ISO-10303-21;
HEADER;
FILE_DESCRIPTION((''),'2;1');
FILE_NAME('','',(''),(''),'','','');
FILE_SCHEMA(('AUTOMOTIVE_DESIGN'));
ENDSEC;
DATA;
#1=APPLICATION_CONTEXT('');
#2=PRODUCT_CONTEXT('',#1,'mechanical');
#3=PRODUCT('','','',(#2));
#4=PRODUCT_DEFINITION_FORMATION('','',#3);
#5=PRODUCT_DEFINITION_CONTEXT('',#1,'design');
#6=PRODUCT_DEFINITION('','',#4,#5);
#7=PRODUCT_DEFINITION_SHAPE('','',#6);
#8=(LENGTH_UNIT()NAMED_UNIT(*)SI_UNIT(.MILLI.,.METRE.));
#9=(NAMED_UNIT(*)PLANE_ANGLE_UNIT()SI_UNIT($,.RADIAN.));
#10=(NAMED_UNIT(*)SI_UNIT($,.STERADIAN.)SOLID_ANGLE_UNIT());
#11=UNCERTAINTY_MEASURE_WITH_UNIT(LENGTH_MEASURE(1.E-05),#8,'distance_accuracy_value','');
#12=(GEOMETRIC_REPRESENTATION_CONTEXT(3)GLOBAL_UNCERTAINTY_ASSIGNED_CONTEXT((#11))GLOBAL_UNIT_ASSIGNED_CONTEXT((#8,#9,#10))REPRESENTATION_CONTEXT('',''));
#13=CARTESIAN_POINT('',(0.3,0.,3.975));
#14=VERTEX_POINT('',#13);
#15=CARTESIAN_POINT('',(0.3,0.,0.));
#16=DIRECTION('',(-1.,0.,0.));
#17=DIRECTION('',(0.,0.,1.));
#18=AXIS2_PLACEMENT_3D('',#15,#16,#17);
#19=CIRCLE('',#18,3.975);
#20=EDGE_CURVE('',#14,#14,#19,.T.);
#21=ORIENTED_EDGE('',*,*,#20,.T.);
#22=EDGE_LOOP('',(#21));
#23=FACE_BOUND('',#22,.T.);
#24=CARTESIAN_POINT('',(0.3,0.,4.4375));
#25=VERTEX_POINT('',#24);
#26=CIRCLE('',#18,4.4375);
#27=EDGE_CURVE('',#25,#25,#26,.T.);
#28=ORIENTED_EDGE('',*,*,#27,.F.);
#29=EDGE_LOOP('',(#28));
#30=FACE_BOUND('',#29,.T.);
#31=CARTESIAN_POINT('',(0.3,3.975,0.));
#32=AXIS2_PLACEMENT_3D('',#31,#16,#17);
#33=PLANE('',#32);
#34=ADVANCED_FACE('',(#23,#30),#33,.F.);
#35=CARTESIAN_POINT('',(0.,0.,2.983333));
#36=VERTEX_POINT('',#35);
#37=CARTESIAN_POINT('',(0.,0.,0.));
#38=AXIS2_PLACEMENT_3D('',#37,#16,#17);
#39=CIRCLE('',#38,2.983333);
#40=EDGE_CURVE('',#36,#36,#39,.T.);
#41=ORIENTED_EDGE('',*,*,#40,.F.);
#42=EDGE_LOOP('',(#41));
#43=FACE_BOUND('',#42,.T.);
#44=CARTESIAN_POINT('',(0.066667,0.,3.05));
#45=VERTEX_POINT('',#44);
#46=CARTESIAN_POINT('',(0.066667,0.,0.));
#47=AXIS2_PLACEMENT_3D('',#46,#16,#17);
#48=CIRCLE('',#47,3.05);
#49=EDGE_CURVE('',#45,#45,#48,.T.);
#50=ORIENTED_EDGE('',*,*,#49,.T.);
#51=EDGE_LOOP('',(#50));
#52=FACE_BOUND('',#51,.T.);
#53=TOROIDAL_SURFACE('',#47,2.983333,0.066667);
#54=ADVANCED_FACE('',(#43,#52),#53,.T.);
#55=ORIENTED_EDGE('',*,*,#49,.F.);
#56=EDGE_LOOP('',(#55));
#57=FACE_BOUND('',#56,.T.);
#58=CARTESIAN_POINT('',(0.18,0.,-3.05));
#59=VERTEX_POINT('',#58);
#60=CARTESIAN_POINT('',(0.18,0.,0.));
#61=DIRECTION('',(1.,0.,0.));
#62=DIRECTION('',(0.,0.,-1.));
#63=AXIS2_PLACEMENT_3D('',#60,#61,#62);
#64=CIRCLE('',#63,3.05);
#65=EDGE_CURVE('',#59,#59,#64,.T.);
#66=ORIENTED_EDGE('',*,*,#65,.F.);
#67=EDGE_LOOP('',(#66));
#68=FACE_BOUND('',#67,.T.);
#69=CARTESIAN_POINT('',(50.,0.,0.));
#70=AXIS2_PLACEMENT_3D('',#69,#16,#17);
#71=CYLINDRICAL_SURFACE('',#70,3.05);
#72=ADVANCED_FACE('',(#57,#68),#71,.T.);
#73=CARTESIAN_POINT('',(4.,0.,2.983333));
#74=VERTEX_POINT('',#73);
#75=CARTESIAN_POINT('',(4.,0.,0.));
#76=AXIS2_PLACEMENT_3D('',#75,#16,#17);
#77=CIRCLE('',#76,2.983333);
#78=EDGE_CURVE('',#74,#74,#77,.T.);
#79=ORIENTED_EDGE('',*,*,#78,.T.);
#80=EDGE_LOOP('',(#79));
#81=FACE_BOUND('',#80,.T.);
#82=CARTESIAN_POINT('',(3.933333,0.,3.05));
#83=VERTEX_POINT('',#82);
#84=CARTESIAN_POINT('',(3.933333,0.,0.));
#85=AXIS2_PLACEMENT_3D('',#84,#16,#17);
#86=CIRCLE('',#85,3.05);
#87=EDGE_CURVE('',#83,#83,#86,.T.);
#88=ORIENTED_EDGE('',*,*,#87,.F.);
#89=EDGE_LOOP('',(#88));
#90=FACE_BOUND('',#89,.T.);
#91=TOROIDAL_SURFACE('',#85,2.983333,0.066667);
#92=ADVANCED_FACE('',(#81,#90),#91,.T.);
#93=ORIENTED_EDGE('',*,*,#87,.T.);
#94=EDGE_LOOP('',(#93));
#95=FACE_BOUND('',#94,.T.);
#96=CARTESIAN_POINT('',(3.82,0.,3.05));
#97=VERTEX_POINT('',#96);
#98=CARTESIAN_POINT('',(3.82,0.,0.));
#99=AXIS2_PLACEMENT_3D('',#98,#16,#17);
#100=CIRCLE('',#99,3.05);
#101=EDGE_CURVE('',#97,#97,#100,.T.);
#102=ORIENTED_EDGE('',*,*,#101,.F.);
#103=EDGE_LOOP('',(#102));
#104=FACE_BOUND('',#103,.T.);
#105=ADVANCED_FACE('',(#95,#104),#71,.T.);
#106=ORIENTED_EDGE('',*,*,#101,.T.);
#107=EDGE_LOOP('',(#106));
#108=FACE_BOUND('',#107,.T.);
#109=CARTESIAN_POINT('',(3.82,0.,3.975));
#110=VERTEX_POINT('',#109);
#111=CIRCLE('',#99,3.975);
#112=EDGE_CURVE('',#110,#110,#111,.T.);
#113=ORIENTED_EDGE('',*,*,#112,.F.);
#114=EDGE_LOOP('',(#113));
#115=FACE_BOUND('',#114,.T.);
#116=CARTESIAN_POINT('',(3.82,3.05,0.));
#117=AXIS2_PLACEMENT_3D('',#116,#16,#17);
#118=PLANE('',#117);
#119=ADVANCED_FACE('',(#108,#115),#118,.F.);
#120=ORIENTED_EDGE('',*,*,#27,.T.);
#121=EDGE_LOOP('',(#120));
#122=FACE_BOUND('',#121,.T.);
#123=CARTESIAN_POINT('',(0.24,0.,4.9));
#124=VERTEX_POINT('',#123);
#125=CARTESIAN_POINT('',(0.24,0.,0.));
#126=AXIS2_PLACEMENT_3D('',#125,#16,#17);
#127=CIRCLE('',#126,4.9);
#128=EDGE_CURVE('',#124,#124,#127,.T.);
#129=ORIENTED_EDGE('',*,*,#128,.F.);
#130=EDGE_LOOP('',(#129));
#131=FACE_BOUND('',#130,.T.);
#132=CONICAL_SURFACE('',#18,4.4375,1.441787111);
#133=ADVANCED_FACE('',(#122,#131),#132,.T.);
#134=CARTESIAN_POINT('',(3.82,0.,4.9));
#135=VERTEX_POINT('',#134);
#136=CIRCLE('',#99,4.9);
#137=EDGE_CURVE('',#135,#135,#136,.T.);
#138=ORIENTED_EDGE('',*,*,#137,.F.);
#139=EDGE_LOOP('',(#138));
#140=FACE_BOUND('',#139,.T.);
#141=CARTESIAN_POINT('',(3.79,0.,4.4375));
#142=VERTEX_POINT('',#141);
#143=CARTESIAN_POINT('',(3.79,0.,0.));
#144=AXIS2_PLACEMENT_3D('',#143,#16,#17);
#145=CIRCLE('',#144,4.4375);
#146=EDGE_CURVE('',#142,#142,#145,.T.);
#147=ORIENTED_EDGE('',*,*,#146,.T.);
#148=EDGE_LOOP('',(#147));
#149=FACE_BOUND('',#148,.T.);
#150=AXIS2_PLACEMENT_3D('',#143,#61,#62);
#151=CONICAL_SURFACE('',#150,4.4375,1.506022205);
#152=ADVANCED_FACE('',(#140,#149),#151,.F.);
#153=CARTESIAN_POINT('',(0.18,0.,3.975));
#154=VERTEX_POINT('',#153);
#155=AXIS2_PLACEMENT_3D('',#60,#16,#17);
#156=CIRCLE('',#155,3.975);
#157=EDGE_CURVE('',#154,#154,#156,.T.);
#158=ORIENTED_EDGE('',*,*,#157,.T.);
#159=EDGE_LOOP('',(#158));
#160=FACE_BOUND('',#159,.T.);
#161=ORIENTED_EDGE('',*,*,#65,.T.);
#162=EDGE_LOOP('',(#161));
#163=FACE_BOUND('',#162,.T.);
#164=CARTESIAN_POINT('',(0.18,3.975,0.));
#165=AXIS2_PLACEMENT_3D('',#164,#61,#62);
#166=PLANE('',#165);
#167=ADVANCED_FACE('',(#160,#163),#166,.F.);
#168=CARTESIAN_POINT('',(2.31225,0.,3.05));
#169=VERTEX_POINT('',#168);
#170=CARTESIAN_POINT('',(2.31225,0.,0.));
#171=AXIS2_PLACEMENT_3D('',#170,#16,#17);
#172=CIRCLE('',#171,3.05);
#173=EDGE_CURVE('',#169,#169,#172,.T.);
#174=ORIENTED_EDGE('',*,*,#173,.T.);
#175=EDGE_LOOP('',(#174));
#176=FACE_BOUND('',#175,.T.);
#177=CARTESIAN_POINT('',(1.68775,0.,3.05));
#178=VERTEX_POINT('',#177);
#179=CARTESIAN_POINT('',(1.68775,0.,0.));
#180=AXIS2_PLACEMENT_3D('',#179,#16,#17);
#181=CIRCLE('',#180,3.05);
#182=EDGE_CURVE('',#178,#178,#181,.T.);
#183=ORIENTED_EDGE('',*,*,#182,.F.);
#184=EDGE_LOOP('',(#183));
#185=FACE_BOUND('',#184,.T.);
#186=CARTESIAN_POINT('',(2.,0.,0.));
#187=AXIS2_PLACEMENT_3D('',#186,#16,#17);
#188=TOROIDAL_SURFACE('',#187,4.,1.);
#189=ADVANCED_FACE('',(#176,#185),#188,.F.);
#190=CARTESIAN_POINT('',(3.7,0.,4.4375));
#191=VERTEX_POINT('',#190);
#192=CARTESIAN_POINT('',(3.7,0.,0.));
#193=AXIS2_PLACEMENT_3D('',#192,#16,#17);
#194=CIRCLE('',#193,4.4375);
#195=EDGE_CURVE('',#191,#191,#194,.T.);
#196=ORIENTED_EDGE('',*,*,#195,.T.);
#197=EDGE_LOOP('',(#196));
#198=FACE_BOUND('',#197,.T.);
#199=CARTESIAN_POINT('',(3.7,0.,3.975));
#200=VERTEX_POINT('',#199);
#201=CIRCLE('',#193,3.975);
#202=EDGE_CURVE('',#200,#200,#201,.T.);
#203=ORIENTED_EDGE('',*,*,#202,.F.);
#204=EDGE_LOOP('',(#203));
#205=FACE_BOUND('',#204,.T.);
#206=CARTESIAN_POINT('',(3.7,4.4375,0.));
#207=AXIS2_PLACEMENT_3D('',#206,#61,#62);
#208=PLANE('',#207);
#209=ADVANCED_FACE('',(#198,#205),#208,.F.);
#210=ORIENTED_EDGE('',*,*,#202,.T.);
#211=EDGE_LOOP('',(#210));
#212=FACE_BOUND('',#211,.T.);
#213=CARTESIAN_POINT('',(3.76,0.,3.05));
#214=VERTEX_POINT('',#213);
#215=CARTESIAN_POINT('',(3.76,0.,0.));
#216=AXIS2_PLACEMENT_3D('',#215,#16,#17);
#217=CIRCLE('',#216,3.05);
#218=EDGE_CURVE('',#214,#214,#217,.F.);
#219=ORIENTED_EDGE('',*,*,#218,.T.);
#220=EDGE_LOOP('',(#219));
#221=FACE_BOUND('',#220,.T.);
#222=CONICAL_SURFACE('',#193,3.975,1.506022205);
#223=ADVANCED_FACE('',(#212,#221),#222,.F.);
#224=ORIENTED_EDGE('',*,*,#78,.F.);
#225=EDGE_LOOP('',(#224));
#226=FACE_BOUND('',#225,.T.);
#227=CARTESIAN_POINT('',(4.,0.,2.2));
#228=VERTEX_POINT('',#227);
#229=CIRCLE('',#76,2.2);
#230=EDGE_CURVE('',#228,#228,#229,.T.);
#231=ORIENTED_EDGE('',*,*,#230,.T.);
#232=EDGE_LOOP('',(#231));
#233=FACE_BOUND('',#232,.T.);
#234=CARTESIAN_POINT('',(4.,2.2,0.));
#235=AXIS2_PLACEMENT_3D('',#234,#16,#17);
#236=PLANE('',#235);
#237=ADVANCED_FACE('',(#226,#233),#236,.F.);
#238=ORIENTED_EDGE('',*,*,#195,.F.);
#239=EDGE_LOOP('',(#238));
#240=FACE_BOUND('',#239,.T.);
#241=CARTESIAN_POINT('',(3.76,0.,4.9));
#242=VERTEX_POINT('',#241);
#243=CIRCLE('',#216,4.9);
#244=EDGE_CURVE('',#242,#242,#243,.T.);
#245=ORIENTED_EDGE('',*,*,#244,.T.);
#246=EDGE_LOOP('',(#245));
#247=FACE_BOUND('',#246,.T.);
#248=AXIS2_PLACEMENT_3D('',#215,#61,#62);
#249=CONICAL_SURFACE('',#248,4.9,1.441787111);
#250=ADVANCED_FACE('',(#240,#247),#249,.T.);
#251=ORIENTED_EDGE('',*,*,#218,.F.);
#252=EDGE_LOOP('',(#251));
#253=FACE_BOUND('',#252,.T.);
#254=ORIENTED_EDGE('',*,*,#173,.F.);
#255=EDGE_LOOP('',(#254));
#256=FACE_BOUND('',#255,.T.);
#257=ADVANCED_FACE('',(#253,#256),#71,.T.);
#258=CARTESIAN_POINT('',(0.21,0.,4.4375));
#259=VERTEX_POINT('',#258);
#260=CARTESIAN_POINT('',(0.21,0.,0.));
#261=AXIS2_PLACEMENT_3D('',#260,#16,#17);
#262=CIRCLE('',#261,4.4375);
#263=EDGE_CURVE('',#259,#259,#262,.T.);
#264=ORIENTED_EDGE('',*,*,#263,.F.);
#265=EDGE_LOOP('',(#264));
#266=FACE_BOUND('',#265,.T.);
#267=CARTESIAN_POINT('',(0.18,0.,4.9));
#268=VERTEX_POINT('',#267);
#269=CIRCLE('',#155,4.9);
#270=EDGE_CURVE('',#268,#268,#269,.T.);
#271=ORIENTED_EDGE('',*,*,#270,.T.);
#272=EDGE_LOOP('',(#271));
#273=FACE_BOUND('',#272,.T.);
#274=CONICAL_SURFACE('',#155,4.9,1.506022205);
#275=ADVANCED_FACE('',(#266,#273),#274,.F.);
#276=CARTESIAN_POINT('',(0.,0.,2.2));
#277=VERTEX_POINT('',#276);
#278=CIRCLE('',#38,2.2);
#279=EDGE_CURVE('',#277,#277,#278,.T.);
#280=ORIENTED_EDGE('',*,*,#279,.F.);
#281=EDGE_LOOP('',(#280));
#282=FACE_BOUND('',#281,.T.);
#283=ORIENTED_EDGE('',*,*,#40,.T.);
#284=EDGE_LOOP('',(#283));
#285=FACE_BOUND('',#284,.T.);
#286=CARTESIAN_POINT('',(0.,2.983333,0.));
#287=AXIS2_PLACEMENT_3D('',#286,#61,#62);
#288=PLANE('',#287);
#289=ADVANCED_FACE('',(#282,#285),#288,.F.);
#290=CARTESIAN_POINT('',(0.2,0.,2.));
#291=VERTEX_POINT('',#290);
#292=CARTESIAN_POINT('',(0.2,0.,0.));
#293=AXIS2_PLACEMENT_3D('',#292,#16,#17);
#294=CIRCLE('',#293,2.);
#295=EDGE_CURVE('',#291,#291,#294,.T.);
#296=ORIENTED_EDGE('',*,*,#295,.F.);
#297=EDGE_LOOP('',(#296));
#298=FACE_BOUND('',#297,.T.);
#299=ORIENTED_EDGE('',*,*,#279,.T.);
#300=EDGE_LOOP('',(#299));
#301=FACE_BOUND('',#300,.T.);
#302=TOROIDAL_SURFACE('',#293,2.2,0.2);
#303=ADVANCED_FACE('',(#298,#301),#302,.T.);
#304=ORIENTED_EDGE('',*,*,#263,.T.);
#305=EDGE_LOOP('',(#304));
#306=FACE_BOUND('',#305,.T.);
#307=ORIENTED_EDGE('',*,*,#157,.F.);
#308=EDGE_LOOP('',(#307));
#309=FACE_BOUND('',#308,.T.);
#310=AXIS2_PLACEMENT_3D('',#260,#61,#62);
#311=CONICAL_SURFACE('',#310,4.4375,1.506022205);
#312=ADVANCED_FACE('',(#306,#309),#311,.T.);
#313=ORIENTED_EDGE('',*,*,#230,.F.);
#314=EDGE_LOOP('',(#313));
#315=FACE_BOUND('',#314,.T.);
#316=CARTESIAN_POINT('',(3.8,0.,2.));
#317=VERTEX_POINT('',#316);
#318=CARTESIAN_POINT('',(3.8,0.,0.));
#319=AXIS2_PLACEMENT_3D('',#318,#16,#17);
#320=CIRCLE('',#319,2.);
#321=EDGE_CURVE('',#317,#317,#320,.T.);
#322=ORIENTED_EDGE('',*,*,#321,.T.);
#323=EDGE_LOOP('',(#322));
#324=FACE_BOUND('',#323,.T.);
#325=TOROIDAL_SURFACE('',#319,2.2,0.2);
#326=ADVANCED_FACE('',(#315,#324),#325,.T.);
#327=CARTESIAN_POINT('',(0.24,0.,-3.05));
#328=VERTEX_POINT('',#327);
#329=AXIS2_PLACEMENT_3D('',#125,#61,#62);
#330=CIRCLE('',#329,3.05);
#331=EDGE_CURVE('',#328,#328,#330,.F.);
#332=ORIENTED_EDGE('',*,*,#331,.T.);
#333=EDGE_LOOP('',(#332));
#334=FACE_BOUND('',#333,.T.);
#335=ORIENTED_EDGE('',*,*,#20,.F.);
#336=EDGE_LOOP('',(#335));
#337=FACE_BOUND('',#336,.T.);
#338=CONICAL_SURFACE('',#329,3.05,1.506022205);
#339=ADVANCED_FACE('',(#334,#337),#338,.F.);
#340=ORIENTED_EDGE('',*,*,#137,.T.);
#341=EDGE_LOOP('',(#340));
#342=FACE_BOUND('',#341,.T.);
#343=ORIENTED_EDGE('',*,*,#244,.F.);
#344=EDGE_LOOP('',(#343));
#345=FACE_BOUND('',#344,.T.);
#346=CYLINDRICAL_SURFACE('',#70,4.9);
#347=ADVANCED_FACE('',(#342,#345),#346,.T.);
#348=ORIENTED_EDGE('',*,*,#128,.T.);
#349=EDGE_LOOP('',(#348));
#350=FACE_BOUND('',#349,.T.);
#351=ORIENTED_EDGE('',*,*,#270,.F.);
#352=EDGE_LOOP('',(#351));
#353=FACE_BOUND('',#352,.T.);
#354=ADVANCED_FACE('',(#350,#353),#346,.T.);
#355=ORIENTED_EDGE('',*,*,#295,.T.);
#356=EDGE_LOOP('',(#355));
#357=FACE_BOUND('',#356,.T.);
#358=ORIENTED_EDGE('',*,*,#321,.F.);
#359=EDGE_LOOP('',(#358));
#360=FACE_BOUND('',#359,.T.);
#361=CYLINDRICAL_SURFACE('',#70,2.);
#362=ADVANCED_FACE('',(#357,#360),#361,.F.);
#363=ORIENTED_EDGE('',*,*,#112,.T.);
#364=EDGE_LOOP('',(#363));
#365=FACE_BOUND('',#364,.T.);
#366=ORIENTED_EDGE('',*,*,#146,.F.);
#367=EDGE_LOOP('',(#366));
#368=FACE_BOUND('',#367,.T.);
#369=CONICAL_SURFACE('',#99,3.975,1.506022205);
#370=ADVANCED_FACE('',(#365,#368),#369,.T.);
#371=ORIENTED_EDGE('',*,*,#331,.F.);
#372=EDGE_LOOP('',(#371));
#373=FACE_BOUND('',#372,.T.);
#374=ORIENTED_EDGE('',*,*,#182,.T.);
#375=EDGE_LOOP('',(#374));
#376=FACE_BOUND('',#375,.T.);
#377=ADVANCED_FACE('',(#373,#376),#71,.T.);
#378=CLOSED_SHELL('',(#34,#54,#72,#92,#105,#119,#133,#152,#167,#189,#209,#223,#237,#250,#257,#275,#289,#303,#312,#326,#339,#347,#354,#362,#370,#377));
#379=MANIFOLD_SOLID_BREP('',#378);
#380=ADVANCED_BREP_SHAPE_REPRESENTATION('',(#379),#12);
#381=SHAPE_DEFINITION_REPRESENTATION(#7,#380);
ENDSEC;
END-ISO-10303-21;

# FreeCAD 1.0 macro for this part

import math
import FreeCAD as App
import Part
import Sketcher


def add_polygon(sketch, points):
    """Adds a closed chain of lines whose ends are joined by coincident constraints."""
    first, n = sketch.GeometryCount, len(points)
    for a, b in zip(points, points[1:] + points[:1]):
        sketch.addGeometry(Part.LineSegment(App.Vector(*a, 0), App.Vector(*b, 0)), False)
    for i in range(n):
        sketch.addConstraint(Sketcher.Constraint("Coincident", first + i, 2, first + (i + 1) % n, 1))

doc = App.newDocument("Part")
body = doc.addObject("PartDesign::Body", "Body")

# Sketch on XY plane
sketch1 = body.newObject("Sketcher::SketchObject", "Sketch")
sketch1.AttachmentSupport = (doc.getObject("XY_Plane"), [""])
sketch1.MapMode = "FlatFace"
sketch1.addGeometry([
    Part.LineSegment(App.Vector(0, 2.983333, 0), App.Vector(0, 2.2, 0)),  # 0
    Part.ArcOfCircle(Part.Circle(App.Vector(0.2, 2.2, 0), App.Vector(0, 0, 1), 0.2), math.radians(-180), math.radians(-90)),  # 1
    Part.LineSegment(App.Vector(0.2, 2, 0), App.Vector(3.8, 2, 0)),  # 2
    Part.ArcOfCircle(Part.Circle(App.Vector(3.8, 2.2, 0), App.Vector(0, 0, 1), 0.2), math.radians(-90), math.radians(0)),  # 3
    Part.LineSegment(App.Vector(4, 2.2, 0), App.Vector(4, 2.983333, 0)),  # 4
    Part.ArcOfCircle(Part.Circle(App.Vector(3.933333, 2.983333, 0), App.Vector(0, 0, 1), 0.066667), math.radians(0.000001), math.radians(89.999999)),  # 5
    Part.LineSegment(App.Vector(3.933333, 3.05, 0), App.Vector(2.31225, 3.05, 0)),  # 6
    Part.ArcOfCircle(Part.Circle(App.Vector(2, 4, 0), App.Vector(0, 0, 1), 1), math.radians(-108.194872), math.radians(-71.805128)),  # 7
    Part.LineSegment(App.Vector(1.68775, 3.05, 0), App.Vector(0.066667, 3.05, 0)),  # 8
    Part.ArcOfCircle(Part.Circle(App.Vector(0.066667, 2.983333, 0), App.Vector(0, 0, 1), 0.066667), math.radians(90.000001), math.radians(179.999999)),  # 9
], False)
sketch1.addConstraint([
    Sketcher.Constraint("Tangent", 0, 2, 1, 1),
    Sketcher.Constraint("Tangent", 1, 2, 2, 1),
    Sketcher.Constraint("Tangent", 2, 2, 3, 1),
    Sketcher.Constraint("Tangent", 3, 2, 4, 1),
    Sketcher.Constraint("Tangent", 4, 2, 5, 1),
    Sketcher.Constraint("Tangent", 5, 2, 6, 1),
    Sketcher.Constraint("Coincident", 6, 2, 7, 2),
    Sketcher.Constraint("Coincident", 7, 1, 8, 1),
    Sketcher.Constraint("Tangent", 8, 2, 9, 1),
    Sketcher.Constraint("Tangent", 9, 2, 0, 1),
    Sketcher.Constraint("Vertical", 0),
    Sketcher.Constraint("Horizontal", 2),
    Sketcher.Constraint("Vertical", 4),
    Sketcher.Constraint("Horizontal", 6),
    Sketcher.Constraint("Horizontal", 8),
    Sketcher.Constraint("Equal", 1, 3),
    Sketcher.Constraint("Equal", 5, 9),
    Sketcher.Constraint("PointOnObject", 0, 2, -2),
    Sketcher.Constraint("Horizontal", 5, 3, 9, 3),
    Sketcher.Constraint("Equal", 6, 8),
    Sketcher.Constraint("Radius", 7, 1.0),
    Sketcher.Constraint("Radius", 1, 0.2),
    Sketcher.Constraint("DistanceX", 2, 1, 2, 2, 3.6),
    Sketcher.Constraint("DistanceY", -1, 1, 7, 3, 4.0),
    Sketcher.Constraint("DistanceY", -1, 1, 1, 2, 2.0),
    Sketcher.Constraint("DistanceY", -1, 1, 5, 2, 3.05),
    Sketcher.Constraint("Radius", 5, 0.066667),
])
revolution = body.newObject("PartDesign::Revolution", "Revolution")
revolution.Profile = sketch1
revolution.ReferenceAxis = (sketch1, ["H_Axis"])
revolution.Angle = 360

# Sketch on XY plane
sketch2 = body.newObject("Sketcher::SketchObject", "Sketch001")
sketch2.AttachmentSupport = (doc.getObject("XY_Plane"), [""])
sketch2.MapMode = "FlatFace"
add_polygon(sketch2, [(0.18, 4.9), (0.21, 4.4375), (0.18, 3.975), (0.18, 3.05), (0.24, 3.05), (0.3, 3.975), (0.3, 4.4375), (0.24, 4.9)])  # lines 0-7
sketch2.addConstraint([
    Sketcher.Constraint("Vertical", 2),
    Sketcher.Constraint("Horizontal", 3),
    Sketcher.Constraint("Vertical", 5),
    Sketcher.Constraint("Horizontal", 7),
    Sketcher.Constraint("Parallel", 1, 4),
    Sketcher.Constraint("Horizontal", 1, 2, 4, 2),
    Sketcher.Constraint("Horizontal", 0, 2, 5, 2),
    Sketcher.Constraint("Vertical", 3, 2, 6, 2),
    Sketcher.Constraint("Vertical", 2, 2, 7, 2),
    Sketcher.Constraint("Equal", 0, 1),
    Sketcher.Constraint("DistanceX", 3, 1, 3, 2, 0.06),
    Sketcher.Constraint("DistanceX", -1, 1, 4, 2, 0.3),
    Sketcher.Constraint("DistanceY", -1, 1, 6, 2, 4.9),
    Sketcher.Constraint("DistanceY", 2, 2, 2, 1, 0.925),
    Sketcher.Constraint("DistanceX", -1, 1, 0, 2, 0.21),
    Sketcher.Constraint("DistanceX", -1, 1, 1, 2, 0.18),
])
revolution2 = body.newObject("PartDesign::Revolution", "Revolution001")
revolution2.Profile = sketch2
revolution2.ReferenceAxis = (sketch2, ["H_Axis"])
revolution2.Angle = 360

# Sketch on XY plane
sketch3 = body.newObject("Sketcher::SketchObject", "Sketch002")
sketch3.AttachmentSupport = (doc.getObject("XY_Plane"), [""])
sketch3.MapMode = "FlatFace"
add_polygon(sketch3, [(3.7, 4.4375), (3.7, 3.975), (3.76, 3.05), (3.82, 3.05), (3.82, 3.975), (3.79, 4.4375), (3.82, 4.9), (3.76, 4.9)])  # lines 0-7
sketch3.addConstraint([
    Sketcher.Constraint("Vertical", 0),
    Sketcher.Constraint("Horizontal", 2),
    Sketcher.Constraint("Vertical", 3),
    Sketcher.Constraint("Horizontal", 6),
    Sketcher.Constraint("Parallel", 1, 4),
    Sketcher.Constraint("Horizontal", 0, 2, 3, 2),
    Sketcher.Constraint("Horizontal", 4, 2, 7, 2),
    Sketcher.Constraint("Vertical", 3, 2, 5, 2),
    Sketcher.Constraint("Vertical", 1, 2, 6, 2),
    Sketcher.Constraint("Equal", 4, 5),
    Sketcher.Constraint("DistanceX", 2, 1, 2, 2, 0.06),
    Sketcher.Constraint("DistanceX", -1, 1, 0, 2, 3.7),
    Sketcher.Constraint("DistanceY", -1, 1, 5, 2, 4.9),
    Sketcher.Constraint("DistanceY", 3, 1, 3, 2, 0.925),
    Sketcher.Constraint("DistanceX", -1, 1, 1, 2, 3.76),
    Sketcher.Constraint("DistanceY", -1, 1, 1, 2, 3.05),
])
revolution3 = body.newObject("PartDesign::Revolution", "Revolution002")
revolution3.Profile = sketch3
revolution3.ReferenceAxis = (sketch3, ["H_Axis"])
revolution3.Angle = 360

doc.recompute()
